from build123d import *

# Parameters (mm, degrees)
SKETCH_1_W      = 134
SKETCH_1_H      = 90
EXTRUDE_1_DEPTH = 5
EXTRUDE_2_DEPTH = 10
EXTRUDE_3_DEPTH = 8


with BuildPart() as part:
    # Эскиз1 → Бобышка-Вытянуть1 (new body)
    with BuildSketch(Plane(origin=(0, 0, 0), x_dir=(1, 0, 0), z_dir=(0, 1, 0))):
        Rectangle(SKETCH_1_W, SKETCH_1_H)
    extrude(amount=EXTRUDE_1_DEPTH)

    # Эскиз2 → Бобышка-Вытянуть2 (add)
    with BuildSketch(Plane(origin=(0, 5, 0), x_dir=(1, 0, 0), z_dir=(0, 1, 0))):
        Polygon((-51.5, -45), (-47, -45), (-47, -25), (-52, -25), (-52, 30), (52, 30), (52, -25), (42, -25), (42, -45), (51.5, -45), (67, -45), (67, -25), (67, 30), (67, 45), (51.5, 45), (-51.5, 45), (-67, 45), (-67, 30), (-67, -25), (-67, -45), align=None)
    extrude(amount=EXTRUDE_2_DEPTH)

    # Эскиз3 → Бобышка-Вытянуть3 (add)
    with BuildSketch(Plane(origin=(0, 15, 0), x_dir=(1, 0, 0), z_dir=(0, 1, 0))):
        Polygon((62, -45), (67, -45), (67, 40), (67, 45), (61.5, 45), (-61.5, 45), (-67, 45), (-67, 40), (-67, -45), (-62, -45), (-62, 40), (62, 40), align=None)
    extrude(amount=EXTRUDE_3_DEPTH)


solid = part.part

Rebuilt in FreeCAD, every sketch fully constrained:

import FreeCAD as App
import Part
import Sketcher

V = App.Vector

doc = App.newDocument("Part")
body = doc.addObject("PartDesign::Body", "Body")

# Sketch on XZ plane
sketch1 = body.newObject("Sketcher::SketchObject", "Sketch")
sketch1.AttachmentSupport = (doc.getObject("XZ_Plane"), [""])
sketch1.MapMode = "FlatFace"
sketch1.addGeometry(Part.LineSegment(V(-67, -45, 0), V(-67, 45, 0)), False)
sketch1.addGeometry(Part.LineSegment(V(-67, 45, 0), V(67, 45, 0)), False)
sketch1.addGeometry(Part.LineSegment(V(67, 45, 0), V(67, -45, 0)), False)
sketch1.addGeometry(Part.LineSegment(V(67, -45, 0), V(-67, -45, 0)), False)
sketch1.addConstraint(Sketcher.Constraint("Coincident", 0, 2, 1, 1))
sketch1.addConstraint(Sketcher.Constraint("Coincident", 1, 2, 2, 1))
sketch1.addConstraint(Sketcher.Constraint("Coincident", 2, 2, 3, 1))
sketch1.addConstraint(Sketcher.Constraint("Coincident", 3, 2, 0, 1))
sketch1.addConstraint(Sketcher.Constraint("Vertical", 0))
sketch1.addConstraint(Sketcher.Constraint("Horizontal", 1))
sketch1.addConstraint(Sketcher.Constraint("Vertical", 2))
sketch1.addConstraint(Sketcher.Constraint("Horizontal", 3))
sketch1.addConstraint(Sketcher.Constraint("Symmetric", 0, 2, 2, 2, -1, 1))
sketch1.addConstraint(Sketcher.Constraint("DistanceX", 1, 1, 1, 2, 134.0))
sketch1.addConstraint(Sketcher.Constraint("DistanceY", 0, 1, 0, 2, 90.0))
pad1 = body.newObject("PartDesign::Pad", "Pad")
pad1.Profile = sketch1
pad1.Length = 5
pad1.Reversed = True

# Sketch on XZ plane
sketch2 = body.newObject("Sketcher::SketchObject", "Sketch001")
sketch2.AttachmentSupport = (doc.getObject("XZ_Plane"), [""])
sketch2.MapMode = "FlatFace"
sketch2.AttachmentOffset = App.Placement(V(0, 0, -5), App.Rotation())
sketch2.addGeometry(Part.LineSegment(V(-47, 45, 0), V(-47, 25, 0)), False)
sketch2.addGeometry(Part.LineSegment(V(-47, 25, 0), V(-52, 25, 0)), False)
sketch2.addGeometry(Part.LineSegment(V(-52, 25, 0), V(-52, -30, 0)), False)
sketch2.addGeometry(Part.LineSegment(V(-52, -30, 0), V(52, -30, 0)), False)
sketch2.addGeometry(Part.LineSegment(V(52, -30, 0), V(52, 25, 0)), False)
sketch2.addGeometry(Part.LineSegment(V(52, 25, 0), V(42, 25, 0)), False)
sketch2.addGeometry(Part.LineSegment(V(42, 25, 0), V(42, 45, 0)), False)
sketch2.addGeometry(Part.LineSegment(V(42, 45, 0), V(67, 45, 0)), False)
sketch2.addGeometry(Part.LineSegment(V(67, 45, 0), V(67, -45, 0)), False)
sketch2.addGeometry(Part.LineSegment(V(67, -45, 0), V(-67, -45, 0)), False)
sketch2.addGeometry(Part.LineSegment(V(-67, -45, 0), V(-67, 45, 0)), False)
sketch2.addGeometry(Part.LineSegment(V(-67, 45, 0), V(-47, 45, 0)), False)
sketch2.addConstraint(Sketcher.Constraint("Coincident", 0, 2, 1, 1))
sketch2.addConstraint(Sketcher.Constraint("Coincident", 1, 2, 2, 1))
sketch2.addConstraint(Sketcher.Constraint("Coincident", 2, 2, 3, 1))
sketch2.addConstraint(Sketcher.Constraint("Coincident", 3, 2, 4, 1))
sketch2.addConstraint(Sketcher.Constraint("Coincident", 4, 2, 5, 1))
sketch2.addConstraint(Sketcher.Constraint("Coincident", 5, 2, 6, 1))
sketch2.addConstraint(Sketcher.Constraint("Coincident", 6, 2, 7, 1))
sketch2.addConstraint(Sketcher.Constraint("Coincident", 7, 2, 8, 1))
sketch2.addConstraint(Sketcher.Constraint("Coincident", 8, 2, 9, 1))
sketch2.addConstraint(Sketcher.Constraint("Coincident", 9, 2, 10, 1))
sketch2.addConstraint(Sketcher.Constraint("Coincident", 10, 2, 11, 1))
sketch2.addConstraint(Sketcher.Constraint("Coincident", 11, 2, 0, 1))
sketch2.addConstraint(Sketcher.Constraint("Vertical", 0))
sketch2.addConstraint(Sketcher.Constraint("Horizontal", 1))
sketch2.addConstraint(Sketcher.Constraint("Vertical", 2))
sketch2.addConstraint(Sketcher.Constraint("Horizontal", 3))
sketch2.addConstraint(Sketcher.Constraint("Vertical", 4))
sketch2.addConstraint(Sketcher.Constraint("Horizontal", 5))
sketch2.addConstraint(Sketcher.Constraint("Vertical", 6))
sketch2.addConstraint(Sketcher.Constraint("Horizontal", 7))
sketch2.addConstraint(Sketcher.Constraint("Vertical", 8))
sketch2.addConstraint(Sketcher.Constraint("Horizontal", 9))
sketch2.addConstraint(Sketcher.Constraint("Vertical", 10))
sketch2.addConstraint(Sketcher.Constraint("Horizontal", 11))
sketch2.addConstraint(Sketcher.Constraint("Symmetric", 7, 2, 9, 2, -1, 1))
sketch2.addConstraint(Sketcher.Constraint("Symmetric", 1, 2, 4, 2, -2))
sketch2.addConstraint(Sketcher.Constraint("Horizontal", 7, 2, 10, 2))
sketch2.addConstraint(Sketcher.Constraint("Equal", 11, 0))
sketch2.addConstraint(Sketcher.Constraint("DistanceX", 1, 2, 1, 1, 5.0))
sketch2.addConstraint(Sketcher.Constraint("DistanceX", 3, 1, 3, 2, 104.0))
sketch2.addConstraint(Sketcher.Constraint("DistanceX", 5, 2, 5, 1, 10.0))
sketch2.addConstraint(Sketcher.Constraint("DistanceX", 7, 1, 7, 2, 25.0))
sketch2.addConstraint(Sketcher.Constraint("DistanceY", 2, 2, 2, 1, 55.0))
sketch2.addConstraint(Sketcher.Constraint("DistanceY", 8, 2, 8, 1, 90.0))
pad2 = body.newObject("PartDesign::Pad", "Pad001")
pad2.Profile = sketch2
pad2.Length = 10
pad2.Reversed = True

# Sketch on XZ plane
sketch3 = body.newObject("Sketcher::SketchObject", "Sketch002")
sketch3.AttachmentSupport = (doc.getObject("XZ_Plane"), [""])
sketch3.MapMode = "FlatFace"
sketch3.AttachmentOffset = App.Placement(V(0, 0, -15), App.Rotation())
sketch3.addGeometry(Part.LineSegment(V(62, 45, 0), V(67, 45, 0)), False)
sketch3.addGeometry(Part.LineSegment(V(67, 45, 0), V(67, -45, 0)), False)
sketch3.addGeometry(Part.LineSegment(V(67, -45, 0), V(-67, -45, 0)), False)
sketch3.addGeometry(Part.LineSegment(V(-67, -45, 0), V(-67, 45, 0)), False)
sketch3.addGeometry(Part.LineSegment(V(-67, 45, 0), V(-62, 45, 0)), False)
sketch3.addGeometry(Part.LineSegment(V(-62, 45, 0), V(-62, -40, 0)), False)
sketch3.addGeometry(Part.LineSegment(V(-62, -40, 0), V(62, -40, 0)), False)
sketch3.addGeometry(Part.LineSegment(V(62, -40, 0), V(62, 45, 0)), False)
sketch3.addConstraint(Sketcher.Constraint("Coincident", 0, 2, 1, 1))
sketch3.addConstraint(Sketcher.Constraint("Coincident", 1, 2, 2, 1))
sketch3.addConstraint(Sketcher.Constraint("Coincident", 2, 2, 3, 1))
sketch3.addConstraint(Sketcher.Constraint("Coincident", 3, 2, 4, 1))
sketch3.addConstraint(Sketcher.Constraint("Coincident", 4, 2, 5, 1))
sketch3.addConstraint(Sketcher.Constraint("Coincident", 5, 2, 6, 1))
sketch3.addConstraint(Sketcher.Constraint("Coincident", 6, 2, 7, 1))
sketch3.addConstraint(Sketcher.Constraint("Coincident", 7, 2, 0, 1))
sketch3.addConstraint(Sketcher.Constraint("Horizontal", 0))
sketch3.addConstraint(Sketcher.Constraint("Vertical", 1))
sketch3.addConstraint(Sketcher.Constraint("Horizontal", 2))
sketch3.addConstraint(Sketcher.Constraint("Vertical", 3))
sketch3.addConstraint(Sketcher.Constraint("Horizontal", 4))
sketch3.addConstraint(Sketcher.Constraint("Vertical", 5))
sketch3.addConstraint(Sketcher.Constraint("Horizontal", 6))
sketch3.addConstraint(Sketcher.Constraint("Vertical", 7))
sketch3.addConstraint(Sketcher.Constraint("Symmetric", 0, 2, 2, 2, -1, 1))
sketch3.addConstraint(Sketcher.Constraint("Symmetric", 4, 2, 7, 2, -2))
sketch3.addConstraint(Sketcher.Constraint("DistanceX", 0, 1, 0, 2, 5.0))
sketch3.addConstraint(Sketcher.Constraint("DistanceX", 2, 2, 2, 1, 134.0))
sketch3.addConstraint(Sketcher.Constraint("DistanceY", 1, 2, 1, 1, 90.0))
sketch3.addConstraint(Sketcher.Constraint("DistanceY", 5, 2, 5, 1, 85.0))
pad3 = body.newObject("PartDesign::Pad", "Pad002")
pad3.Profile = sketch3
pad3.Length = 8
pad3.Reversed = True

doc.recompute()
